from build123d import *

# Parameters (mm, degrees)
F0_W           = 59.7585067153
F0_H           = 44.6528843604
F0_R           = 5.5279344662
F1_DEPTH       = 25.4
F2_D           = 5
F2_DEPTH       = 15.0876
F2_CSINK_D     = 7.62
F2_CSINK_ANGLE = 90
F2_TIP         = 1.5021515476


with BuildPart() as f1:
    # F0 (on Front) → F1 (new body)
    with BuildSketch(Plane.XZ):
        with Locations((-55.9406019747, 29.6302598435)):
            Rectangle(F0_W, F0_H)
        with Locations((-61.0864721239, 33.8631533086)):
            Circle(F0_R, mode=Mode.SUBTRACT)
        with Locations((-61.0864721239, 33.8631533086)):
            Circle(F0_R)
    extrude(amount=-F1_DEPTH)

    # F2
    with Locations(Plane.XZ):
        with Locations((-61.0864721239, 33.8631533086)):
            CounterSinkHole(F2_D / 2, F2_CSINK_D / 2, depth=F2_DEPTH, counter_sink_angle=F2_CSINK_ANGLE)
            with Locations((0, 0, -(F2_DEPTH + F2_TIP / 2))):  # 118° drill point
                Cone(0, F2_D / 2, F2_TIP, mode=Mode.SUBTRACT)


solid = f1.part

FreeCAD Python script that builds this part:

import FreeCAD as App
import Part
import Sketcher
from FreeCAD import Vector
Q = App.Units.Quantity

doc = App.newDocument("Part")
params = doc.addObject("Spreadsheet::Sheet", "Params")
for row, (alias, value) in enumerate([
    ("pad1_length", "1 in"),
    ("hole_diameter", "5 mm"),
    ("hole_depth", "0.594 in"),
    ("hole_csink_diameter", "0.3 in"),
], start=1):
    params.set(f"A{row}", alias)
    params.set(f"B{row}", "=" + value)
    params.setAlias(f"B{row}", alias)

body = doc.addObject("PartDesign::Body", "Body")

# Sketch on XZ plane
sketch1 = body.newObject("Sketcher::SketchObject", "Sketch")
sketch1.AttachmentSupport = (doc.getObject("XZ_Plane"), [""])
sketch1.MapMode = "FlatFace"
sketch1.addGeometry([
    Part.LineSegment(Vector(-86, 52, 0), Vector(-86, 7, 0)),
    Part.LineSegment(Vector(-86, 7, 0), Vector(-26, 7, 0)),
    Part.LineSegment(Vector(-26, 7, 0), Vector(-26, 52, 0)),
    Part.LineSegment(Vector(-26, 52, 0), Vector(-86, 52, 0)),
], False)
sketch1.addConstraint([
    Sketcher.Constraint("Coincident", 0, 2, 1, 1),
    Sketcher.Constraint("Coincident", 1, 2, 2, 1),
    Sketcher.Constraint("Coincident", 2, 2, 3, 1),
    Sketcher.Constraint("Coincident", 3, 2, 0, 1),
    Sketcher.Constraint("Vertical", 0),
    Sketcher.Constraint("Horizontal", 1),
    Sketcher.Constraint("Vertical", 2),
    Sketcher.Constraint("Horizontal", 3),
    Sketcher.Constraint("DistanceX", 1, 1, 1, 2, Q("59.758507 mm")),
    Sketcher.Constraint("DistanceY", 0, 2, 0, 1, Q("44.652884 mm")),
    Sketcher.Constraint("DistanceX", 1, 2, -1, 1, Q("26.061349 mm")),
    Sketcher.Constraint("DistanceY", -1, 1, 0, 2, Q("7.303818 mm")),
])
pad1 = body.newObject("PartDesign::Pad", "Pad")
pad1.Profile = sketch1
pad1.setExpression("Length", "Params.pad1_length")
pad1.Reversed = True

# Sketch on XZ plane
sketch2 = body.newObject("Sketcher::SketchObject", "Sketch001")
sketch2.AttachmentSupport = (doc.getObject("XZ_Plane"), [""])
sketch2.MapMode = "FlatFace"
sketch2.addGeometry(Part.Circle(Vector(-61.1, 33.9, 0), Vector(0, 0, 1), 2.5), False)
sketch2.addConstraint([
    Sketcher.Constraint("Diameter", 0, Q("5 mm")),
    Sketcher.Constraint("DistanceX", 0, 3, -1, 1, Q("61.086472 mm")),
    Sketcher.Constraint("DistanceY", -1, 1, 0, 3, Q("33.863153 mm")),
])
doc.recompute()
hole = body.newObject("PartDesign::Hole", "Hole")
hole.Profile = sketch2
hole.ThreadType = "None"
hole.setExpression("Diameter", "Params.hole_diameter")
hole.DepthType = "Dimension"
hole.setExpression("Depth", "Params.hole_depth")
hole.DrillPoint = "Angled"
hole.DrillPointAngle = 118
hole.HoleCutType = "Countersink"
hole.setExpression("HoleCutDiameter", "Params.hole_csink_diameter")
hole.HoleCutCountersinkAngle = 90

doc.recompute()
